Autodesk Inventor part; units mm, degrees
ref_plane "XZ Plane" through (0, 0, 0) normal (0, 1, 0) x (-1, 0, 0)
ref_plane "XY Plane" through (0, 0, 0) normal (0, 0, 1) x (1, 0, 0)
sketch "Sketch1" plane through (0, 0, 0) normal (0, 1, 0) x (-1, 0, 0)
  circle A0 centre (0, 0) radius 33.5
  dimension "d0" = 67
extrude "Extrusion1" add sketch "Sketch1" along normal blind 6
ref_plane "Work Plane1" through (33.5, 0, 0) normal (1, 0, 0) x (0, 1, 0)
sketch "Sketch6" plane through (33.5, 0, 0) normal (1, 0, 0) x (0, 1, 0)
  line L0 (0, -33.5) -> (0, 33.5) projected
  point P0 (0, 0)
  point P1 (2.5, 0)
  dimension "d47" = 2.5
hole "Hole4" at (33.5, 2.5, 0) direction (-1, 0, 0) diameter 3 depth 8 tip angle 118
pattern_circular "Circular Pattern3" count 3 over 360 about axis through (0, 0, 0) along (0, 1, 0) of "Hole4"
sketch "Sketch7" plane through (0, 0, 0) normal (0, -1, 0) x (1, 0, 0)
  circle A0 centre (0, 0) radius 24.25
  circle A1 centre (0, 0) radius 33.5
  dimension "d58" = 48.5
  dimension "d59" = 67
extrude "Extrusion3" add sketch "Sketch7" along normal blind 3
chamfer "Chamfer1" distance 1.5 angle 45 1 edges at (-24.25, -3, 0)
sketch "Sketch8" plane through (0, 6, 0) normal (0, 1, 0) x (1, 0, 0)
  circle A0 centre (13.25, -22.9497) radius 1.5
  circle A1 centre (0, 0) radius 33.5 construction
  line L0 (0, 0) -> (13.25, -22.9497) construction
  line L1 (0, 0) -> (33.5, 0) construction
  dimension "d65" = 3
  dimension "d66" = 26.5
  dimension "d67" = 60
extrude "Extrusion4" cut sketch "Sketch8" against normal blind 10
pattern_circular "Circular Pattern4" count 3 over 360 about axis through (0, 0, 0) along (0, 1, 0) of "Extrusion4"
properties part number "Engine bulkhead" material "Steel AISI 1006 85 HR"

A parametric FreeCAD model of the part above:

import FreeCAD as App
import Part
import Sketcher
from FreeCAD import Vector
Q = App.Units.Quantity


def edges_at(feature, points):
    """Names of the edges that pass closest to the given points."""
    edges = feature.Shape.Edges
    near = lambda p: min(range(len(edges)), key=lambda i: edges[i].distToShape(Part.Vertex(*p))[0])
    return sorted({f"Edge{near(p) + 1}" for p in points})

doc = App.newDocument("Part")
params = doc.addObject("Spreadsheet::Sheet", "Params")
for row, (alias, value) in enumerate([
    ("sketch1_diameter", "67 mm"),
    ("pad1_length", "6 mm"),
    ("sketch2_diameter", "3 mm"),
    ("hole_diameter", "3 mm"),
    ("hole_depth", "8 mm"),
    ("sketch3_diameter", "67 mm"),
    ("sketch3_diameter2", "48.5 mm"),
    ("pad2_length", "3 mm"),
    ("chamfer_size", "1.5 mm"),
    ("sketch4_diameter", "3 mm"),
    ("pocket1_length", "10 mm"),
], start=1):
    params.set(f"A{row}", alias)
    params.set(f"B{row}", "=" + value)
    params.setAlias(f"B{row}", alias)

body = doc.addObject("PartDesign::Body", "Body")

# Sketch on XZ plane
sketch1 = doc.addObject("Sketcher::SketchObject", "Sketch")
body.addObject(sketch1)
sketch1.AttachmentSupport = (doc.XZ_Plane, [""])
sketch1.MapMode = "FlatFace"
sketch1.addGeometry(Part.Circle(Vector(0, 0, 0), Vector(0, 0, 1), 33.5), False)
sketch1.addConstraint(Sketcher.Constraint("Coincident", 0, 3, -1, 1))
sketch1.addConstraint(Sketcher.Constraint("Diameter", 0, Q("67 mm")))
sketch1.setExpression("Constraints[1]", "Params.sketch1_diameter")
pad1 = doc.addObject("PartDesign::Pad", "Pad")
body.addObject(pad1)
pad1.Profile = sketch1
pad1.setExpression("Length", "Params.pad1_length")
pad1.Reversed = True

# Sketch on YZ plane
sketch2 = doc.addObject("Sketcher::SketchObject", "Sketch001")
body.addObject(sketch2)
sketch2.AttachmentSupport = (doc.YZ_Plane, [""])
sketch2.MapMode = "FlatFace"
sketch2.AttachmentOffset = App.Placement(Vector(0, 0, 33.5), App.Rotation())
sketch2.addGeometry(Part.Circle(Vector(2.5, 0, 0), Vector(0, 0, 1), 1.5), False)
sketch2.addConstraint(Sketcher.Constraint("PointOnObject", 0, 3, -1))
sketch2.addConstraint(Sketcher.Constraint("Diameter", 0, Q("3 mm")))
sketch2.addConstraint(Sketcher.Constraint("DistanceX", -1, 1, 0, 3, Q("2.5 mm")))
sketch2.setExpression("Constraints[1]", "Params.sketch2_diameter")
doc.recompute()
hole = doc.addObject("PartDesign::Hole", "Hole")
body.addObject(hole)
hole.Profile = sketch2
hole.ThreadType = "None"
hole.setExpression("Diameter", "Params.hole_diameter")
hole.DepthType = "Dimension"
hole.setExpression("Depth", "Params.hole_depth")
hole.DrillPoint = "Angled"
hole.DrillPointAngle = 118
doc.recompute()

polarpattern = doc.addObject("PartDesign::PolarPattern", "PolarPattern")
body.addObject(polarpattern)
polarpattern.Originals = [hole]
polarpattern.Axis = (doc.Y_Axis, [""])
polarpattern.Angle = 360
polarpattern.Occurrences = 3
body.Tip = polarpattern

# Sketch on XZ plane
sketch3 = doc.addObject("Sketcher::SketchObject", "Sketch002")
body.addObject(sketch3)
sketch3.AttachmentSupport = (doc.XZ_Plane, [""])
sketch3.MapMode = "FlatFace"
sketch3.addGeometry(Part.Circle(Vector(0, 0, 0), Vector(0, 0, 1), 33.5), False)
sketch3.addGeometry(Part.Circle(Vector(0, 0, 0), Vector(0, 0, 1), 24.25), False)
sketch3.addConstraint(Sketcher.Constraint("Coincident", 0, 3, -1, 1))
sketch3.addConstraint(Sketcher.Constraint("Coincident", 1, 3, -1, 1))
sketch3.addConstraint(Sketcher.Constraint("Diameter", 0, Q("67 mm")))
sketch3.addConstraint(Sketcher.Constraint("Diameter", 1, Q("48.5 mm")))
sketch3.setExpression("Constraints[2]", "Params.sketch3_diameter")
sketch3.setExpression("Constraints[3]", "Params.sketch3_diameter2")
pad2 = doc.addObject("PartDesign::Pad", "Pad001")
body.addObject(pad2)
pad2.Profile = sketch3
pad2.setExpression("Length", "Params.pad2_length")
doc.recompute()

chamfer = doc.addObject("PartDesign::Chamfer", "Chamfer")
body.addObject(chamfer)
chamfer.Base = (pad2, edges_at(pad2, [(-24.25, -3, 0)]))
chamfer.setExpression("Size", "Params.chamfer_size")

# Sketch on XZ plane
sketch4 = doc.addObject("Sketcher::SketchObject", "Sketch003")
body.addObject(sketch4)
sketch4.AttachmentSupport = (doc.XZ_Plane, [""])
sketch4.MapMode = "FlatFace"
sketch4.AttachmentOffset = App.Placement(Vector(0, 0, -6), App.Rotation())
sketch4.addGeometry(Part.Circle(Vector(13.25, 22.9497, 0), Vector(0, 0, 1), 1.5), False)
sketch4.addConstraint(Sketcher.Constraint("Diameter", 0, Q("3 mm")))
sketch4.addConstraint(Sketcher.Constraint("DistanceX", -1, 1, 0, 3, Q("13.25 mm")))
sketch4.addConstraint(Sketcher.Constraint("DistanceY", -1, 1, 0, 3, Q("22.9497 mm")))
sketch4.setExpression("Constraints[0]", "Params.sketch4_diameter")
pocket1 = doc.addObject("PartDesign::Pocket", "Pocket")
body.addObject(pocket1)
pocket1.Profile = sketch4
pocket1.setExpression("Length", "Params.pocket1_length")
pocket1.Reversed = True
doc.recompute()

polarpattern2 = doc.addObject("PartDesign::PolarPattern", "PolarPattern001")
body.addObject(polarpattern2)
polarpattern2.Originals = [pocket1]
polarpattern2.Axis = (doc.Y_Axis, [""])
polarpattern2.Angle = 360
polarpattern2.Occurrences = 3
body.Tip = polarpattern2

doc.recompute()
